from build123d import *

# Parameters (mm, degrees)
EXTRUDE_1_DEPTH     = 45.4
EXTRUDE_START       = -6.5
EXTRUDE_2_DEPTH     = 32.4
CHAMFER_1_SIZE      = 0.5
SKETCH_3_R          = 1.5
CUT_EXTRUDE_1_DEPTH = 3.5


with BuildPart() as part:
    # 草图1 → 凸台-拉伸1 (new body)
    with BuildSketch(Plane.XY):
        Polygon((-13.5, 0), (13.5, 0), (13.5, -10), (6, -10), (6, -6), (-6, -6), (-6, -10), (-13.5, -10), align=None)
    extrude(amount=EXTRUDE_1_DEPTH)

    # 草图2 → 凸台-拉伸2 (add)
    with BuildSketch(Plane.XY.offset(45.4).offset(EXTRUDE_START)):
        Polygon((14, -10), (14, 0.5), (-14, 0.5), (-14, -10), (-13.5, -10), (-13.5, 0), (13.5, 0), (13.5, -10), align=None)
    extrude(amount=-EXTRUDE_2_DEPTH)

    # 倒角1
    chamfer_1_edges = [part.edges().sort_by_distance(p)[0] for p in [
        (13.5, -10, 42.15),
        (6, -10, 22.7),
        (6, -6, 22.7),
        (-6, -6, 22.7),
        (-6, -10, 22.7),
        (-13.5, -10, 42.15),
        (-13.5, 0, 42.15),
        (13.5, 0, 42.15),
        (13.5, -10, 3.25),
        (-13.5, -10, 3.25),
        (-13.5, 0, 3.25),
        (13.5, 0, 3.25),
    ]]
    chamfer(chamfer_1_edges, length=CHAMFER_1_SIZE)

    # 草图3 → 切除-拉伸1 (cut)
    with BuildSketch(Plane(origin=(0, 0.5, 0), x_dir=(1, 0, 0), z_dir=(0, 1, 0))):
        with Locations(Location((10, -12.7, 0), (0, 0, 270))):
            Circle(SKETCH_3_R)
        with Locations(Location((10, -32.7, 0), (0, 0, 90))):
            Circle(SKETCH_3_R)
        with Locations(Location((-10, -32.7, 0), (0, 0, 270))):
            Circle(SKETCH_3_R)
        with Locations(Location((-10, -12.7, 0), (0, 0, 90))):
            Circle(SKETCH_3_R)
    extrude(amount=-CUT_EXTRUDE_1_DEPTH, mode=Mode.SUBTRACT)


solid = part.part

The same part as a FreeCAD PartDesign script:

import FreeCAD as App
import Part
import Sketcher
from FreeCAD import Vector
Q = App.Units.Quantity


def edges_at(feature, points):
    """Names of the edges that pass closest to the given points."""
    edges = feature.Shape.Edges
    near = lambda p: min(range(len(edges)), key=lambda i: edges[i].distToShape(Part.Vertex(*p))[0])
    return sorted({f"Edge{near(p) + 1}" for p in points})


def add_polygon(sketch, points):
    """Adds a closed chain of lines whose ends are joined by coincident constraints."""
    first, n = sketch.GeometryCount, len(points)
    for a, b in zip(points, points[1:] + points[:1]):
        sketch.addGeometry(Part.LineSegment(App.Vector(*a, 0), App.Vector(*b, 0)), False)
    for i in range(n):
        sketch.addConstraint(Sketcher.Constraint("Coincident", first + i, 2, first + (i + 1) % n, 1))

doc = App.newDocument("Part")
body = doc.addObject("PartDesign::Body", "Body")

# Sketch on XY plane
sketch1 = body.newObject("Sketcher::SketchObject", "Sketch")
sketch1.AttachmentSupport = (doc.getObject("XY_Plane"), [""])
sketch1.MapMode = "FlatFace"
add_polygon(sketch1, [(13.5, 0), (-13.5, 0), (-13.5, -10), (-6, -10), (-6, -6), (6, -6), (6, -10), (13.5, -10)])  # lines 0-7
sketch1.addConstraint([
    Sketcher.Constraint("Horizontal", 0),
    Sketcher.Constraint("Vertical", 1),
    Sketcher.Constraint("Horizontal", 2),
    Sketcher.Constraint("Vertical", 3),
    Sketcher.Constraint("Horizontal", 4),
    Sketcher.Constraint("Vertical", 5),
    Sketcher.Constraint("Horizontal", 6),
    Sketcher.Constraint("Vertical", 7),
    Sketcher.Constraint("Symmetric", 0, 2, 7, 2, -1, 1),
    Sketcher.Constraint("Symmetric", 2, 2, 5, 2, -2),
    Sketcher.Constraint("DistanceX", 0, 2, 0, 1, Q("27 mm")),
    Sketcher.Constraint("DistanceX", 4, 1, 4, 2, Q("12 mm")),
    Sketcher.Constraint("DistanceY", 1, 2, 1, 1, Q("10 mm")),
    Sketcher.Constraint("DistanceY", 3, 1, 3, 2, Q("4 mm")),
])
pad1 = body.newObject("PartDesign::Pad", "Pad")
pad1.Profile = sketch1
pad1.Length = 45.4

# Sketch on XY plane
sketch2 = body.newObject("Sketcher::SketchObject", "Sketch001")
sketch2.AttachmentSupport = (doc.getObject("XY_Plane"), [""])
sketch2.MapMode = "FlatFace"
sketch2.AttachmentOffset = App.Placement(Vector(0, 0, 38.9), App.Rotation())
add_polygon(sketch2, [(14, -10), (14, 0.5), (-14, 0.5), (-14, -10), (-13.5, -10), (-13.5, 0), (13.5, 0), (13.5, -10)])  # lines 0-7
sketch2.addConstraint([
    Sketcher.Constraint("Vertical", 0),
    Sketcher.Constraint("Horizontal", 1),
    Sketcher.Constraint("Vertical", 2),
    Sketcher.Constraint("Horizontal", 3),
    Sketcher.Constraint("Vertical", 4),
    Sketcher.Constraint("Horizontal", 5),
    Sketcher.Constraint("Vertical", 6),
    Sketcher.Constraint("Horizontal", 7),
    Sketcher.Constraint("Symmetric", 4, 2, 5, 2, -1, 1),
    Sketcher.Constraint("Symmetric", 2, 2, 7, 2, -2),
    Sketcher.Constraint("DistanceX", 1, 2, 1, 1, Q("28 mm")),
    Sketcher.Constraint("DistanceX", 5, 1, 5, 2, Q("27 mm")),
    Sketcher.Constraint("DistanceY", 4, 1, 4, 2, Q("10 mm")),
    Sketcher.Constraint("DistanceY", 0, 1, 0, 2, Q("10.5 mm")),
])
pad2 = body.newObject("PartDesign::Pad", "Pad001")
pad2.Profile = sketch2
pad2.Length = 32.4
pad2.Reversed = True
doc.recompute()

chamfer = body.newObject("PartDesign::Chamfer", "Chamfer")
chamfer.Base = (pad2, edges_at(pad2, [
    (13.5, -10, 42.15),
    (6, -10, 22.7),
    (6, -6, 22.7),
    (-6, -6, 22.7),
    (-6, -10, 22.7),
    (-13.5, -10, 42.15),
    (-13.5, 0, 42.15),
    (13.5, 0, 42.15),
    (13.5, -10, 3.25),
    (-13.5, -10, 3.25),
    (-13.5, 0, 3.25),
    (13.5, 0, 3.25),
]))
chamfer.Size = 0.5

# Sketch on XZ plane
sketch3 = body.newObject("Sketcher::SketchObject", "Sketch002")
sketch3.AttachmentSupport = (doc.getObject("XZ_Plane"), [""])
sketch3.MapMode = "FlatFace"
sketch3.AttachmentOffset = App.Placement(Vector(0, 0, -0.5), App.Rotation())
sketch3.addGeometry([
    Part.Circle(Vector(10, 12.7, 0), Vector(0, 0, 1), 1.5),
    Part.Circle(Vector(10, 32.7, 0), Vector(0, 0, 1), 1.5),
    Part.Circle(Vector(-10, 32.7, 0), Vector(0, 0, 1), 1.5),
    Part.Circle(Vector(-10, 12.7, 0), Vector(0, 0, 1), 1.5),
], False)
sketch3.addConstraint([
    Sketcher.Constraint("Equal", 0, 1),
    Sketcher.Constraint("Equal", 1, 2),
    Sketcher.Constraint("Equal", 2, 3),
    Sketcher.Constraint("Symmetric", 1, 3, 2, 3, -2),
    Sketcher.Constraint("Symmetric", 0, 3, 3, 3, -2),
    Sketcher.Constraint("Vertical", 0, 3, 1, 3),
    Sketcher.Constraint("Diameter", 0, Q("3 mm")),
    Sketcher.Constraint("DistanceX", -1, 1, 0, 3, Q("10 mm")),
    Sketcher.Constraint("DistanceY", 0, 3, 1, 3, Q("20 mm")),
    Sketcher.Constraint("DistanceY", -1, 1, 0, 3, Q("12.7 mm")),
])
pocket1 = body.newObject("PartDesign::Pocket", "Pocket")
pocket1.Profile = sketch3
pocket1.Length = 3.5
pocket1.Reversed = True

doc.recompute()
